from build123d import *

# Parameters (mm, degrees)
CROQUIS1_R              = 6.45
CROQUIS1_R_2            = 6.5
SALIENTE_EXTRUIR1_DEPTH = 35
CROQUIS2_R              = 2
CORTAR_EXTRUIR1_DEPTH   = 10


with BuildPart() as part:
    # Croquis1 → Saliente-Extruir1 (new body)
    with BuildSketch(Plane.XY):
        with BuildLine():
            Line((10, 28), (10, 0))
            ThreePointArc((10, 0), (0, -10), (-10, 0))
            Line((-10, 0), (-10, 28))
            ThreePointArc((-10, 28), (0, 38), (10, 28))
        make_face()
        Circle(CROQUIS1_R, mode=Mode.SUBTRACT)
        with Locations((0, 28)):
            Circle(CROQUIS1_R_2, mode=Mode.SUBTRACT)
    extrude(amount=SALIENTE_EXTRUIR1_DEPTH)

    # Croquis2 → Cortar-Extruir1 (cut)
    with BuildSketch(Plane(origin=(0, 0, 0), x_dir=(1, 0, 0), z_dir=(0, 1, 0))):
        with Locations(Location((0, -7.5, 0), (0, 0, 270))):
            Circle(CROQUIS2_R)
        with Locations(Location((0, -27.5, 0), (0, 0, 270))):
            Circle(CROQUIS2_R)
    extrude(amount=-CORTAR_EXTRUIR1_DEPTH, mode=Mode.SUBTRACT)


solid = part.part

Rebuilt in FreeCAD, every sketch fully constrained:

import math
import FreeCAD as App
import Part
import Sketcher
from FreeCAD import Vector
Q = App.Units.Quantity

doc = App.newDocument("Part")
body = doc.addObject("PartDesign::Body", "Body")

sketch1 = body.newObject("Sketcher::SketchObject", "Sketch")
sketch1.AttachmentSupport = (doc.getObject("XY_Plane"), [""])
sketch1.MapMode = "FlatFace"
sketch1.addGeometry(Part.LineSegment(Vector(10, 0, 0), Vector(10, 28, 0)), False)
sketch1.addGeometry(Part.ArcOfCircle(Part.Circle(Vector(0, 28, 0), Vector(0, 0, 1), 10), math.radians(0), math.radians(180)), False)
sketch1.addGeometry(Part.LineSegment(Vector(-10, 28, 0), Vector(-10, 0, 0)), False)
sketch1.addGeometry(Part.ArcOfCircle(Part.Circle(Vector(0, 0, 0), Vector(0, 0, 1), 10), math.radians(180), math.radians(360)), False)
sketch1.addGeometry(Part.Circle(Vector(0, 0, 0), Vector(0, 0, 1), 6), False)
sketch1.addGeometry(Part.Circle(Vector(0, 28, 0), Vector(0, 0, 1), 6), False)
sketch1.addConstraint(Sketcher.Constraint("Tangent", 0, 2, 1, 1))
sketch1.addConstraint(Sketcher.Constraint("Tangent", 1, 2, 2, 1))
sketch1.addConstraint(Sketcher.Constraint("Tangent", 2, 2, 3, 1))
sketch1.addConstraint(Sketcher.Constraint("Tangent", 3, 2, 0, 1))
sketch1.addConstraint(Sketcher.Constraint("Vertical", 0))
sketch1.addConstraint(Sketcher.Constraint("Vertical", 2))
sketch1.addConstraint(Sketcher.Constraint("Coincident", 3, 3, -1, 1))
sketch1.addConstraint(Sketcher.Constraint("Coincident", 4, 3, -1, 1))
sketch1.addConstraint(Sketcher.Constraint("Coincident", 5, 3, 1, 3))
sketch1.addConstraint(Sketcher.Constraint("Diameter", 5, Q("13 mm")))
sketch1.addConstraint(Sketcher.Constraint("Radius", 1, Q("10 mm")))
sketch1.addConstraint(Sketcher.Constraint("Diameter", 4, Q("12.9 mm")))
sketch1.addConstraint(Sketcher.Constraint("DistanceY", 0, 1, 0, 2, Q("28 mm")))
pad1 = body.newObject("PartDesign::Pad", "Pad")
pad1.Profile = sketch1
pad1.Length = 35

sketch2 = body.newObject("Sketcher::SketchObject", "Sketch001")
sketch2.AttachmentSupport = (doc.getObject("XZ_Plane"), [""])
sketch2.MapMode = "FlatFace"
sketch2.addGeometry(Part.Circle(Vector(0, 7.5, 0), Vector(0, 0, 1), 2), False)
sketch2.addGeometry(Part.Circle(Vector(0, 27.5, 0), Vector(0, 0, 1), 2), False)
sketch2.addConstraint(Sketcher.Constraint("Equal", 0, 1))
sketch2.addConstraint(Sketcher.Constraint("PointOnObject", 0, 3, -2))
sketch2.addConstraint(Sketcher.Constraint("PointOnObject", 1, 3, -2))
sketch2.addConstraint(Sketcher.Constraint("Diameter", 0, Q("4 mm")))
sketch2.addConstraint(Sketcher.Constraint("DistanceY", 0, 3, 1, 3, Q("20 mm")))
sketch2.addConstraint(Sketcher.Constraint("DistanceY", -1, 1, 0, 3, Q("7.5 mm")))
pocket1 = body.newObject("PartDesign::Pocket", "Pocket")
pocket1.Profile = sketch2
pocket1.Length = 10
pocket1.Reversed = True

doc.recompute()
